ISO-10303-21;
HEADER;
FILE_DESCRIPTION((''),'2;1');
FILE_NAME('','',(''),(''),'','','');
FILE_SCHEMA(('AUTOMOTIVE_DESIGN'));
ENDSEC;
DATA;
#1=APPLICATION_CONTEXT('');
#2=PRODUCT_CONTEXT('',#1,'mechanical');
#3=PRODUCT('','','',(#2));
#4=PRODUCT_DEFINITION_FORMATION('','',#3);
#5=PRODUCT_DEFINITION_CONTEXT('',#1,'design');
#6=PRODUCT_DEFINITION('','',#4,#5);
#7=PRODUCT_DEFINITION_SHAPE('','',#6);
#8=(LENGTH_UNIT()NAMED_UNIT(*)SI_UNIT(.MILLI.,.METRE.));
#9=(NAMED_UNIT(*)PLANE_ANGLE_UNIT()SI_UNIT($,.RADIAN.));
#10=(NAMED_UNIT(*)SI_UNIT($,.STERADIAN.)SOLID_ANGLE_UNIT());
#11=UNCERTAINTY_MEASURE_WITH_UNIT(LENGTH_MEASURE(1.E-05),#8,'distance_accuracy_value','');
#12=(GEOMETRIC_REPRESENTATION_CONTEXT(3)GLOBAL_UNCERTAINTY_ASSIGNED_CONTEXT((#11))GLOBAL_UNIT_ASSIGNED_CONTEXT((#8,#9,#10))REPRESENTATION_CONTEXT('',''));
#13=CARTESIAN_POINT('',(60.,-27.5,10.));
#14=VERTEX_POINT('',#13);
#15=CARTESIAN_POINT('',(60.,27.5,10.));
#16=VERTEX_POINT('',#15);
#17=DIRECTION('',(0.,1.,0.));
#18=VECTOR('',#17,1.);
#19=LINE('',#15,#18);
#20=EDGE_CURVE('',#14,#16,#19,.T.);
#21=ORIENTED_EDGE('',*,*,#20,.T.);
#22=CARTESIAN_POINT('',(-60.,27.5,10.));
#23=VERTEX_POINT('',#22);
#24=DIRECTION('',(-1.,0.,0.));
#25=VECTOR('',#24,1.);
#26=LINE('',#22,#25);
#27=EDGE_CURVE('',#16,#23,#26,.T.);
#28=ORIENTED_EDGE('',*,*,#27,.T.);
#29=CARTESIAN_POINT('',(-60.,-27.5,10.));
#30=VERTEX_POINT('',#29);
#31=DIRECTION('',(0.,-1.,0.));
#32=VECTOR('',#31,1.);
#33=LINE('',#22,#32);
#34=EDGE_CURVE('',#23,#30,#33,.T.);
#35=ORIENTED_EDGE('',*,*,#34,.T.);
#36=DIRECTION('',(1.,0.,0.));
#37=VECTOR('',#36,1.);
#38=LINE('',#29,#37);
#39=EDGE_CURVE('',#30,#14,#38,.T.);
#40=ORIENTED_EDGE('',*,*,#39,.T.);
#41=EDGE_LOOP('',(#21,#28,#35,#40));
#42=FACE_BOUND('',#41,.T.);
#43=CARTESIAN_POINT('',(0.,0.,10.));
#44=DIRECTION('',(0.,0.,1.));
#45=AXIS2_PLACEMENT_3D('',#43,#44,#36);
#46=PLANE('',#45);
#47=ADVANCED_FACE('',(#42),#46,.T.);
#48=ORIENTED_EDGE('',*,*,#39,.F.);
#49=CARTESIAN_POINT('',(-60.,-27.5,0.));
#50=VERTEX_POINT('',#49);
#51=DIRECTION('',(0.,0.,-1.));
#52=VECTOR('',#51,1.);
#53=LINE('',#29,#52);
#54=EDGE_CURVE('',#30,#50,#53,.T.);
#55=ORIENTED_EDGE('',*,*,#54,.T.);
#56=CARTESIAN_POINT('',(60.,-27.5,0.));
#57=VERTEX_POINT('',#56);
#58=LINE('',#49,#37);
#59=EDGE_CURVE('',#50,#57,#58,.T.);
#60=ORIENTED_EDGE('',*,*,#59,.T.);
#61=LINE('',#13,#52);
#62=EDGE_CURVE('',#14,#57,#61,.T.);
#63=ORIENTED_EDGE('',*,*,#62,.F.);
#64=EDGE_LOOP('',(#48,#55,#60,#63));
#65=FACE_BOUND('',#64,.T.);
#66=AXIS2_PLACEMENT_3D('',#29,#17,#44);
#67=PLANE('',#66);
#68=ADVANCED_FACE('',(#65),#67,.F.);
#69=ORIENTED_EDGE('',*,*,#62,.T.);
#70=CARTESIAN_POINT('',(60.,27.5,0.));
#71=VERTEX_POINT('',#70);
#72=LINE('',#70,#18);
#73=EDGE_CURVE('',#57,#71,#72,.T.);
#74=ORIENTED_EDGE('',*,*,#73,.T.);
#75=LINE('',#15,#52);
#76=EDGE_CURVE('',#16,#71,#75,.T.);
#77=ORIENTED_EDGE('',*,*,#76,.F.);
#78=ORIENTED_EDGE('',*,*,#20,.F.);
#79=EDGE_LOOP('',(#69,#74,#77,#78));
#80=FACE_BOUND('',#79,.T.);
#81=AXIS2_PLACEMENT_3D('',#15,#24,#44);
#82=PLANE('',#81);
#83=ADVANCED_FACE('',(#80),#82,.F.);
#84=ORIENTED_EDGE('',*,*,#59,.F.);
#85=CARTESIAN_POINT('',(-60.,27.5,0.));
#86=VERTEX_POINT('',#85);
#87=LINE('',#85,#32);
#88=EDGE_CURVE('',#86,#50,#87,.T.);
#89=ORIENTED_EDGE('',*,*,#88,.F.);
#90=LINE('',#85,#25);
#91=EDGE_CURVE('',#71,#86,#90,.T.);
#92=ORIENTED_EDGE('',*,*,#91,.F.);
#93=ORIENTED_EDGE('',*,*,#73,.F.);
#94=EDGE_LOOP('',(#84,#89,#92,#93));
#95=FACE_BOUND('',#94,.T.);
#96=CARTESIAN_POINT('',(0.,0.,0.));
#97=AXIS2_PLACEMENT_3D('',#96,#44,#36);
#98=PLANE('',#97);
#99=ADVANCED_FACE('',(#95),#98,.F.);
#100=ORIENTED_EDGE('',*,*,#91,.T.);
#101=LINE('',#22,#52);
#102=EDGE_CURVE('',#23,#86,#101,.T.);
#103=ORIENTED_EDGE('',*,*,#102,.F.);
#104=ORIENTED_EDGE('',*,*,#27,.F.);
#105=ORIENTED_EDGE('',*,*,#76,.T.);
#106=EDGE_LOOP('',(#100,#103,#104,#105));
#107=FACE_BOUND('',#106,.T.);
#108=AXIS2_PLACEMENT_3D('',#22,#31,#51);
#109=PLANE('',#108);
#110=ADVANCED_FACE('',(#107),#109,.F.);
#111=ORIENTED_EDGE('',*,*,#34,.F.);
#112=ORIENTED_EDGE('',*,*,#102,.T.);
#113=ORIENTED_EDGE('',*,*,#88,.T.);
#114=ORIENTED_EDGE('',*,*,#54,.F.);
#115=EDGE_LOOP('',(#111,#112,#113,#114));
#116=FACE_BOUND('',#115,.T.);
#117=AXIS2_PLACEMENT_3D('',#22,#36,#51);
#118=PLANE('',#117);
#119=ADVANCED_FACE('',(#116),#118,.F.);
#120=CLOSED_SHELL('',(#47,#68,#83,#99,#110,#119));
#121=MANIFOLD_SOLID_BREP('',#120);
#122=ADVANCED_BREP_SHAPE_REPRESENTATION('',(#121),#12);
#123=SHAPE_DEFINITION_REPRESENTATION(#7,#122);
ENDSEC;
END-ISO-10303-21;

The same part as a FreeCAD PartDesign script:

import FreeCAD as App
import Part
import Sketcher

V = App.Vector
Q = App.Units.Quantity


def add_polygon(sketch, points):
    """Adds a closed chain of lines whose ends are joined by coincident constraints."""
    first, n = sketch.GeometryCount, len(points)
    for a, b in zip(points, points[1:] + points[:1]):
        sketch.addGeometry(Part.LineSegment(App.Vector(*a, 0), App.Vector(*b, 0)), False)
    for i in range(n):
        sketch.addConstraint(Sketcher.Constraint("Coincident", first + i, 2, first + (i + 1) % n, 1))

doc = App.newDocument("Part")
body = doc.addObject("PartDesign::Body", "Body")

# Sketch on XY plane
sketch1 = body.newObject("Sketcher::SketchObject", "Sketch")
sketch1.AttachmentSupport = (doc.getObject("XY_Plane"), [""])
sketch1.MapMode = "FlatFace"
add_polygon(sketch1, [(-60, 28), (-60, -28), (60, -28), (60, 28)])  # lines 0-3
sketch1.addConstraint([
    Sketcher.Constraint("Vertical", 0),
    Sketcher.Constraint("Horizontal", 1),
    Sketcher.Constraint("Vertical", 2),
    Sketcher.Constraint("Horizontal", 3),
    Sketcher.Constraint("Symmetric", 0, 2, 2, 2, -1, 1),
    Sketcher.Constraint("DistanceX", 1, 1, 1, 2, Q("120 mm")),
    Sketcher.Constraint("DistanceY", 0, 2, 0, 1, Q("55 mm")),
])
pad1 = body.newObject("PartDesign::Pad", "Pad")
pad1.Profile = sketch1
pad1.Length = 10

doc.recompute()
